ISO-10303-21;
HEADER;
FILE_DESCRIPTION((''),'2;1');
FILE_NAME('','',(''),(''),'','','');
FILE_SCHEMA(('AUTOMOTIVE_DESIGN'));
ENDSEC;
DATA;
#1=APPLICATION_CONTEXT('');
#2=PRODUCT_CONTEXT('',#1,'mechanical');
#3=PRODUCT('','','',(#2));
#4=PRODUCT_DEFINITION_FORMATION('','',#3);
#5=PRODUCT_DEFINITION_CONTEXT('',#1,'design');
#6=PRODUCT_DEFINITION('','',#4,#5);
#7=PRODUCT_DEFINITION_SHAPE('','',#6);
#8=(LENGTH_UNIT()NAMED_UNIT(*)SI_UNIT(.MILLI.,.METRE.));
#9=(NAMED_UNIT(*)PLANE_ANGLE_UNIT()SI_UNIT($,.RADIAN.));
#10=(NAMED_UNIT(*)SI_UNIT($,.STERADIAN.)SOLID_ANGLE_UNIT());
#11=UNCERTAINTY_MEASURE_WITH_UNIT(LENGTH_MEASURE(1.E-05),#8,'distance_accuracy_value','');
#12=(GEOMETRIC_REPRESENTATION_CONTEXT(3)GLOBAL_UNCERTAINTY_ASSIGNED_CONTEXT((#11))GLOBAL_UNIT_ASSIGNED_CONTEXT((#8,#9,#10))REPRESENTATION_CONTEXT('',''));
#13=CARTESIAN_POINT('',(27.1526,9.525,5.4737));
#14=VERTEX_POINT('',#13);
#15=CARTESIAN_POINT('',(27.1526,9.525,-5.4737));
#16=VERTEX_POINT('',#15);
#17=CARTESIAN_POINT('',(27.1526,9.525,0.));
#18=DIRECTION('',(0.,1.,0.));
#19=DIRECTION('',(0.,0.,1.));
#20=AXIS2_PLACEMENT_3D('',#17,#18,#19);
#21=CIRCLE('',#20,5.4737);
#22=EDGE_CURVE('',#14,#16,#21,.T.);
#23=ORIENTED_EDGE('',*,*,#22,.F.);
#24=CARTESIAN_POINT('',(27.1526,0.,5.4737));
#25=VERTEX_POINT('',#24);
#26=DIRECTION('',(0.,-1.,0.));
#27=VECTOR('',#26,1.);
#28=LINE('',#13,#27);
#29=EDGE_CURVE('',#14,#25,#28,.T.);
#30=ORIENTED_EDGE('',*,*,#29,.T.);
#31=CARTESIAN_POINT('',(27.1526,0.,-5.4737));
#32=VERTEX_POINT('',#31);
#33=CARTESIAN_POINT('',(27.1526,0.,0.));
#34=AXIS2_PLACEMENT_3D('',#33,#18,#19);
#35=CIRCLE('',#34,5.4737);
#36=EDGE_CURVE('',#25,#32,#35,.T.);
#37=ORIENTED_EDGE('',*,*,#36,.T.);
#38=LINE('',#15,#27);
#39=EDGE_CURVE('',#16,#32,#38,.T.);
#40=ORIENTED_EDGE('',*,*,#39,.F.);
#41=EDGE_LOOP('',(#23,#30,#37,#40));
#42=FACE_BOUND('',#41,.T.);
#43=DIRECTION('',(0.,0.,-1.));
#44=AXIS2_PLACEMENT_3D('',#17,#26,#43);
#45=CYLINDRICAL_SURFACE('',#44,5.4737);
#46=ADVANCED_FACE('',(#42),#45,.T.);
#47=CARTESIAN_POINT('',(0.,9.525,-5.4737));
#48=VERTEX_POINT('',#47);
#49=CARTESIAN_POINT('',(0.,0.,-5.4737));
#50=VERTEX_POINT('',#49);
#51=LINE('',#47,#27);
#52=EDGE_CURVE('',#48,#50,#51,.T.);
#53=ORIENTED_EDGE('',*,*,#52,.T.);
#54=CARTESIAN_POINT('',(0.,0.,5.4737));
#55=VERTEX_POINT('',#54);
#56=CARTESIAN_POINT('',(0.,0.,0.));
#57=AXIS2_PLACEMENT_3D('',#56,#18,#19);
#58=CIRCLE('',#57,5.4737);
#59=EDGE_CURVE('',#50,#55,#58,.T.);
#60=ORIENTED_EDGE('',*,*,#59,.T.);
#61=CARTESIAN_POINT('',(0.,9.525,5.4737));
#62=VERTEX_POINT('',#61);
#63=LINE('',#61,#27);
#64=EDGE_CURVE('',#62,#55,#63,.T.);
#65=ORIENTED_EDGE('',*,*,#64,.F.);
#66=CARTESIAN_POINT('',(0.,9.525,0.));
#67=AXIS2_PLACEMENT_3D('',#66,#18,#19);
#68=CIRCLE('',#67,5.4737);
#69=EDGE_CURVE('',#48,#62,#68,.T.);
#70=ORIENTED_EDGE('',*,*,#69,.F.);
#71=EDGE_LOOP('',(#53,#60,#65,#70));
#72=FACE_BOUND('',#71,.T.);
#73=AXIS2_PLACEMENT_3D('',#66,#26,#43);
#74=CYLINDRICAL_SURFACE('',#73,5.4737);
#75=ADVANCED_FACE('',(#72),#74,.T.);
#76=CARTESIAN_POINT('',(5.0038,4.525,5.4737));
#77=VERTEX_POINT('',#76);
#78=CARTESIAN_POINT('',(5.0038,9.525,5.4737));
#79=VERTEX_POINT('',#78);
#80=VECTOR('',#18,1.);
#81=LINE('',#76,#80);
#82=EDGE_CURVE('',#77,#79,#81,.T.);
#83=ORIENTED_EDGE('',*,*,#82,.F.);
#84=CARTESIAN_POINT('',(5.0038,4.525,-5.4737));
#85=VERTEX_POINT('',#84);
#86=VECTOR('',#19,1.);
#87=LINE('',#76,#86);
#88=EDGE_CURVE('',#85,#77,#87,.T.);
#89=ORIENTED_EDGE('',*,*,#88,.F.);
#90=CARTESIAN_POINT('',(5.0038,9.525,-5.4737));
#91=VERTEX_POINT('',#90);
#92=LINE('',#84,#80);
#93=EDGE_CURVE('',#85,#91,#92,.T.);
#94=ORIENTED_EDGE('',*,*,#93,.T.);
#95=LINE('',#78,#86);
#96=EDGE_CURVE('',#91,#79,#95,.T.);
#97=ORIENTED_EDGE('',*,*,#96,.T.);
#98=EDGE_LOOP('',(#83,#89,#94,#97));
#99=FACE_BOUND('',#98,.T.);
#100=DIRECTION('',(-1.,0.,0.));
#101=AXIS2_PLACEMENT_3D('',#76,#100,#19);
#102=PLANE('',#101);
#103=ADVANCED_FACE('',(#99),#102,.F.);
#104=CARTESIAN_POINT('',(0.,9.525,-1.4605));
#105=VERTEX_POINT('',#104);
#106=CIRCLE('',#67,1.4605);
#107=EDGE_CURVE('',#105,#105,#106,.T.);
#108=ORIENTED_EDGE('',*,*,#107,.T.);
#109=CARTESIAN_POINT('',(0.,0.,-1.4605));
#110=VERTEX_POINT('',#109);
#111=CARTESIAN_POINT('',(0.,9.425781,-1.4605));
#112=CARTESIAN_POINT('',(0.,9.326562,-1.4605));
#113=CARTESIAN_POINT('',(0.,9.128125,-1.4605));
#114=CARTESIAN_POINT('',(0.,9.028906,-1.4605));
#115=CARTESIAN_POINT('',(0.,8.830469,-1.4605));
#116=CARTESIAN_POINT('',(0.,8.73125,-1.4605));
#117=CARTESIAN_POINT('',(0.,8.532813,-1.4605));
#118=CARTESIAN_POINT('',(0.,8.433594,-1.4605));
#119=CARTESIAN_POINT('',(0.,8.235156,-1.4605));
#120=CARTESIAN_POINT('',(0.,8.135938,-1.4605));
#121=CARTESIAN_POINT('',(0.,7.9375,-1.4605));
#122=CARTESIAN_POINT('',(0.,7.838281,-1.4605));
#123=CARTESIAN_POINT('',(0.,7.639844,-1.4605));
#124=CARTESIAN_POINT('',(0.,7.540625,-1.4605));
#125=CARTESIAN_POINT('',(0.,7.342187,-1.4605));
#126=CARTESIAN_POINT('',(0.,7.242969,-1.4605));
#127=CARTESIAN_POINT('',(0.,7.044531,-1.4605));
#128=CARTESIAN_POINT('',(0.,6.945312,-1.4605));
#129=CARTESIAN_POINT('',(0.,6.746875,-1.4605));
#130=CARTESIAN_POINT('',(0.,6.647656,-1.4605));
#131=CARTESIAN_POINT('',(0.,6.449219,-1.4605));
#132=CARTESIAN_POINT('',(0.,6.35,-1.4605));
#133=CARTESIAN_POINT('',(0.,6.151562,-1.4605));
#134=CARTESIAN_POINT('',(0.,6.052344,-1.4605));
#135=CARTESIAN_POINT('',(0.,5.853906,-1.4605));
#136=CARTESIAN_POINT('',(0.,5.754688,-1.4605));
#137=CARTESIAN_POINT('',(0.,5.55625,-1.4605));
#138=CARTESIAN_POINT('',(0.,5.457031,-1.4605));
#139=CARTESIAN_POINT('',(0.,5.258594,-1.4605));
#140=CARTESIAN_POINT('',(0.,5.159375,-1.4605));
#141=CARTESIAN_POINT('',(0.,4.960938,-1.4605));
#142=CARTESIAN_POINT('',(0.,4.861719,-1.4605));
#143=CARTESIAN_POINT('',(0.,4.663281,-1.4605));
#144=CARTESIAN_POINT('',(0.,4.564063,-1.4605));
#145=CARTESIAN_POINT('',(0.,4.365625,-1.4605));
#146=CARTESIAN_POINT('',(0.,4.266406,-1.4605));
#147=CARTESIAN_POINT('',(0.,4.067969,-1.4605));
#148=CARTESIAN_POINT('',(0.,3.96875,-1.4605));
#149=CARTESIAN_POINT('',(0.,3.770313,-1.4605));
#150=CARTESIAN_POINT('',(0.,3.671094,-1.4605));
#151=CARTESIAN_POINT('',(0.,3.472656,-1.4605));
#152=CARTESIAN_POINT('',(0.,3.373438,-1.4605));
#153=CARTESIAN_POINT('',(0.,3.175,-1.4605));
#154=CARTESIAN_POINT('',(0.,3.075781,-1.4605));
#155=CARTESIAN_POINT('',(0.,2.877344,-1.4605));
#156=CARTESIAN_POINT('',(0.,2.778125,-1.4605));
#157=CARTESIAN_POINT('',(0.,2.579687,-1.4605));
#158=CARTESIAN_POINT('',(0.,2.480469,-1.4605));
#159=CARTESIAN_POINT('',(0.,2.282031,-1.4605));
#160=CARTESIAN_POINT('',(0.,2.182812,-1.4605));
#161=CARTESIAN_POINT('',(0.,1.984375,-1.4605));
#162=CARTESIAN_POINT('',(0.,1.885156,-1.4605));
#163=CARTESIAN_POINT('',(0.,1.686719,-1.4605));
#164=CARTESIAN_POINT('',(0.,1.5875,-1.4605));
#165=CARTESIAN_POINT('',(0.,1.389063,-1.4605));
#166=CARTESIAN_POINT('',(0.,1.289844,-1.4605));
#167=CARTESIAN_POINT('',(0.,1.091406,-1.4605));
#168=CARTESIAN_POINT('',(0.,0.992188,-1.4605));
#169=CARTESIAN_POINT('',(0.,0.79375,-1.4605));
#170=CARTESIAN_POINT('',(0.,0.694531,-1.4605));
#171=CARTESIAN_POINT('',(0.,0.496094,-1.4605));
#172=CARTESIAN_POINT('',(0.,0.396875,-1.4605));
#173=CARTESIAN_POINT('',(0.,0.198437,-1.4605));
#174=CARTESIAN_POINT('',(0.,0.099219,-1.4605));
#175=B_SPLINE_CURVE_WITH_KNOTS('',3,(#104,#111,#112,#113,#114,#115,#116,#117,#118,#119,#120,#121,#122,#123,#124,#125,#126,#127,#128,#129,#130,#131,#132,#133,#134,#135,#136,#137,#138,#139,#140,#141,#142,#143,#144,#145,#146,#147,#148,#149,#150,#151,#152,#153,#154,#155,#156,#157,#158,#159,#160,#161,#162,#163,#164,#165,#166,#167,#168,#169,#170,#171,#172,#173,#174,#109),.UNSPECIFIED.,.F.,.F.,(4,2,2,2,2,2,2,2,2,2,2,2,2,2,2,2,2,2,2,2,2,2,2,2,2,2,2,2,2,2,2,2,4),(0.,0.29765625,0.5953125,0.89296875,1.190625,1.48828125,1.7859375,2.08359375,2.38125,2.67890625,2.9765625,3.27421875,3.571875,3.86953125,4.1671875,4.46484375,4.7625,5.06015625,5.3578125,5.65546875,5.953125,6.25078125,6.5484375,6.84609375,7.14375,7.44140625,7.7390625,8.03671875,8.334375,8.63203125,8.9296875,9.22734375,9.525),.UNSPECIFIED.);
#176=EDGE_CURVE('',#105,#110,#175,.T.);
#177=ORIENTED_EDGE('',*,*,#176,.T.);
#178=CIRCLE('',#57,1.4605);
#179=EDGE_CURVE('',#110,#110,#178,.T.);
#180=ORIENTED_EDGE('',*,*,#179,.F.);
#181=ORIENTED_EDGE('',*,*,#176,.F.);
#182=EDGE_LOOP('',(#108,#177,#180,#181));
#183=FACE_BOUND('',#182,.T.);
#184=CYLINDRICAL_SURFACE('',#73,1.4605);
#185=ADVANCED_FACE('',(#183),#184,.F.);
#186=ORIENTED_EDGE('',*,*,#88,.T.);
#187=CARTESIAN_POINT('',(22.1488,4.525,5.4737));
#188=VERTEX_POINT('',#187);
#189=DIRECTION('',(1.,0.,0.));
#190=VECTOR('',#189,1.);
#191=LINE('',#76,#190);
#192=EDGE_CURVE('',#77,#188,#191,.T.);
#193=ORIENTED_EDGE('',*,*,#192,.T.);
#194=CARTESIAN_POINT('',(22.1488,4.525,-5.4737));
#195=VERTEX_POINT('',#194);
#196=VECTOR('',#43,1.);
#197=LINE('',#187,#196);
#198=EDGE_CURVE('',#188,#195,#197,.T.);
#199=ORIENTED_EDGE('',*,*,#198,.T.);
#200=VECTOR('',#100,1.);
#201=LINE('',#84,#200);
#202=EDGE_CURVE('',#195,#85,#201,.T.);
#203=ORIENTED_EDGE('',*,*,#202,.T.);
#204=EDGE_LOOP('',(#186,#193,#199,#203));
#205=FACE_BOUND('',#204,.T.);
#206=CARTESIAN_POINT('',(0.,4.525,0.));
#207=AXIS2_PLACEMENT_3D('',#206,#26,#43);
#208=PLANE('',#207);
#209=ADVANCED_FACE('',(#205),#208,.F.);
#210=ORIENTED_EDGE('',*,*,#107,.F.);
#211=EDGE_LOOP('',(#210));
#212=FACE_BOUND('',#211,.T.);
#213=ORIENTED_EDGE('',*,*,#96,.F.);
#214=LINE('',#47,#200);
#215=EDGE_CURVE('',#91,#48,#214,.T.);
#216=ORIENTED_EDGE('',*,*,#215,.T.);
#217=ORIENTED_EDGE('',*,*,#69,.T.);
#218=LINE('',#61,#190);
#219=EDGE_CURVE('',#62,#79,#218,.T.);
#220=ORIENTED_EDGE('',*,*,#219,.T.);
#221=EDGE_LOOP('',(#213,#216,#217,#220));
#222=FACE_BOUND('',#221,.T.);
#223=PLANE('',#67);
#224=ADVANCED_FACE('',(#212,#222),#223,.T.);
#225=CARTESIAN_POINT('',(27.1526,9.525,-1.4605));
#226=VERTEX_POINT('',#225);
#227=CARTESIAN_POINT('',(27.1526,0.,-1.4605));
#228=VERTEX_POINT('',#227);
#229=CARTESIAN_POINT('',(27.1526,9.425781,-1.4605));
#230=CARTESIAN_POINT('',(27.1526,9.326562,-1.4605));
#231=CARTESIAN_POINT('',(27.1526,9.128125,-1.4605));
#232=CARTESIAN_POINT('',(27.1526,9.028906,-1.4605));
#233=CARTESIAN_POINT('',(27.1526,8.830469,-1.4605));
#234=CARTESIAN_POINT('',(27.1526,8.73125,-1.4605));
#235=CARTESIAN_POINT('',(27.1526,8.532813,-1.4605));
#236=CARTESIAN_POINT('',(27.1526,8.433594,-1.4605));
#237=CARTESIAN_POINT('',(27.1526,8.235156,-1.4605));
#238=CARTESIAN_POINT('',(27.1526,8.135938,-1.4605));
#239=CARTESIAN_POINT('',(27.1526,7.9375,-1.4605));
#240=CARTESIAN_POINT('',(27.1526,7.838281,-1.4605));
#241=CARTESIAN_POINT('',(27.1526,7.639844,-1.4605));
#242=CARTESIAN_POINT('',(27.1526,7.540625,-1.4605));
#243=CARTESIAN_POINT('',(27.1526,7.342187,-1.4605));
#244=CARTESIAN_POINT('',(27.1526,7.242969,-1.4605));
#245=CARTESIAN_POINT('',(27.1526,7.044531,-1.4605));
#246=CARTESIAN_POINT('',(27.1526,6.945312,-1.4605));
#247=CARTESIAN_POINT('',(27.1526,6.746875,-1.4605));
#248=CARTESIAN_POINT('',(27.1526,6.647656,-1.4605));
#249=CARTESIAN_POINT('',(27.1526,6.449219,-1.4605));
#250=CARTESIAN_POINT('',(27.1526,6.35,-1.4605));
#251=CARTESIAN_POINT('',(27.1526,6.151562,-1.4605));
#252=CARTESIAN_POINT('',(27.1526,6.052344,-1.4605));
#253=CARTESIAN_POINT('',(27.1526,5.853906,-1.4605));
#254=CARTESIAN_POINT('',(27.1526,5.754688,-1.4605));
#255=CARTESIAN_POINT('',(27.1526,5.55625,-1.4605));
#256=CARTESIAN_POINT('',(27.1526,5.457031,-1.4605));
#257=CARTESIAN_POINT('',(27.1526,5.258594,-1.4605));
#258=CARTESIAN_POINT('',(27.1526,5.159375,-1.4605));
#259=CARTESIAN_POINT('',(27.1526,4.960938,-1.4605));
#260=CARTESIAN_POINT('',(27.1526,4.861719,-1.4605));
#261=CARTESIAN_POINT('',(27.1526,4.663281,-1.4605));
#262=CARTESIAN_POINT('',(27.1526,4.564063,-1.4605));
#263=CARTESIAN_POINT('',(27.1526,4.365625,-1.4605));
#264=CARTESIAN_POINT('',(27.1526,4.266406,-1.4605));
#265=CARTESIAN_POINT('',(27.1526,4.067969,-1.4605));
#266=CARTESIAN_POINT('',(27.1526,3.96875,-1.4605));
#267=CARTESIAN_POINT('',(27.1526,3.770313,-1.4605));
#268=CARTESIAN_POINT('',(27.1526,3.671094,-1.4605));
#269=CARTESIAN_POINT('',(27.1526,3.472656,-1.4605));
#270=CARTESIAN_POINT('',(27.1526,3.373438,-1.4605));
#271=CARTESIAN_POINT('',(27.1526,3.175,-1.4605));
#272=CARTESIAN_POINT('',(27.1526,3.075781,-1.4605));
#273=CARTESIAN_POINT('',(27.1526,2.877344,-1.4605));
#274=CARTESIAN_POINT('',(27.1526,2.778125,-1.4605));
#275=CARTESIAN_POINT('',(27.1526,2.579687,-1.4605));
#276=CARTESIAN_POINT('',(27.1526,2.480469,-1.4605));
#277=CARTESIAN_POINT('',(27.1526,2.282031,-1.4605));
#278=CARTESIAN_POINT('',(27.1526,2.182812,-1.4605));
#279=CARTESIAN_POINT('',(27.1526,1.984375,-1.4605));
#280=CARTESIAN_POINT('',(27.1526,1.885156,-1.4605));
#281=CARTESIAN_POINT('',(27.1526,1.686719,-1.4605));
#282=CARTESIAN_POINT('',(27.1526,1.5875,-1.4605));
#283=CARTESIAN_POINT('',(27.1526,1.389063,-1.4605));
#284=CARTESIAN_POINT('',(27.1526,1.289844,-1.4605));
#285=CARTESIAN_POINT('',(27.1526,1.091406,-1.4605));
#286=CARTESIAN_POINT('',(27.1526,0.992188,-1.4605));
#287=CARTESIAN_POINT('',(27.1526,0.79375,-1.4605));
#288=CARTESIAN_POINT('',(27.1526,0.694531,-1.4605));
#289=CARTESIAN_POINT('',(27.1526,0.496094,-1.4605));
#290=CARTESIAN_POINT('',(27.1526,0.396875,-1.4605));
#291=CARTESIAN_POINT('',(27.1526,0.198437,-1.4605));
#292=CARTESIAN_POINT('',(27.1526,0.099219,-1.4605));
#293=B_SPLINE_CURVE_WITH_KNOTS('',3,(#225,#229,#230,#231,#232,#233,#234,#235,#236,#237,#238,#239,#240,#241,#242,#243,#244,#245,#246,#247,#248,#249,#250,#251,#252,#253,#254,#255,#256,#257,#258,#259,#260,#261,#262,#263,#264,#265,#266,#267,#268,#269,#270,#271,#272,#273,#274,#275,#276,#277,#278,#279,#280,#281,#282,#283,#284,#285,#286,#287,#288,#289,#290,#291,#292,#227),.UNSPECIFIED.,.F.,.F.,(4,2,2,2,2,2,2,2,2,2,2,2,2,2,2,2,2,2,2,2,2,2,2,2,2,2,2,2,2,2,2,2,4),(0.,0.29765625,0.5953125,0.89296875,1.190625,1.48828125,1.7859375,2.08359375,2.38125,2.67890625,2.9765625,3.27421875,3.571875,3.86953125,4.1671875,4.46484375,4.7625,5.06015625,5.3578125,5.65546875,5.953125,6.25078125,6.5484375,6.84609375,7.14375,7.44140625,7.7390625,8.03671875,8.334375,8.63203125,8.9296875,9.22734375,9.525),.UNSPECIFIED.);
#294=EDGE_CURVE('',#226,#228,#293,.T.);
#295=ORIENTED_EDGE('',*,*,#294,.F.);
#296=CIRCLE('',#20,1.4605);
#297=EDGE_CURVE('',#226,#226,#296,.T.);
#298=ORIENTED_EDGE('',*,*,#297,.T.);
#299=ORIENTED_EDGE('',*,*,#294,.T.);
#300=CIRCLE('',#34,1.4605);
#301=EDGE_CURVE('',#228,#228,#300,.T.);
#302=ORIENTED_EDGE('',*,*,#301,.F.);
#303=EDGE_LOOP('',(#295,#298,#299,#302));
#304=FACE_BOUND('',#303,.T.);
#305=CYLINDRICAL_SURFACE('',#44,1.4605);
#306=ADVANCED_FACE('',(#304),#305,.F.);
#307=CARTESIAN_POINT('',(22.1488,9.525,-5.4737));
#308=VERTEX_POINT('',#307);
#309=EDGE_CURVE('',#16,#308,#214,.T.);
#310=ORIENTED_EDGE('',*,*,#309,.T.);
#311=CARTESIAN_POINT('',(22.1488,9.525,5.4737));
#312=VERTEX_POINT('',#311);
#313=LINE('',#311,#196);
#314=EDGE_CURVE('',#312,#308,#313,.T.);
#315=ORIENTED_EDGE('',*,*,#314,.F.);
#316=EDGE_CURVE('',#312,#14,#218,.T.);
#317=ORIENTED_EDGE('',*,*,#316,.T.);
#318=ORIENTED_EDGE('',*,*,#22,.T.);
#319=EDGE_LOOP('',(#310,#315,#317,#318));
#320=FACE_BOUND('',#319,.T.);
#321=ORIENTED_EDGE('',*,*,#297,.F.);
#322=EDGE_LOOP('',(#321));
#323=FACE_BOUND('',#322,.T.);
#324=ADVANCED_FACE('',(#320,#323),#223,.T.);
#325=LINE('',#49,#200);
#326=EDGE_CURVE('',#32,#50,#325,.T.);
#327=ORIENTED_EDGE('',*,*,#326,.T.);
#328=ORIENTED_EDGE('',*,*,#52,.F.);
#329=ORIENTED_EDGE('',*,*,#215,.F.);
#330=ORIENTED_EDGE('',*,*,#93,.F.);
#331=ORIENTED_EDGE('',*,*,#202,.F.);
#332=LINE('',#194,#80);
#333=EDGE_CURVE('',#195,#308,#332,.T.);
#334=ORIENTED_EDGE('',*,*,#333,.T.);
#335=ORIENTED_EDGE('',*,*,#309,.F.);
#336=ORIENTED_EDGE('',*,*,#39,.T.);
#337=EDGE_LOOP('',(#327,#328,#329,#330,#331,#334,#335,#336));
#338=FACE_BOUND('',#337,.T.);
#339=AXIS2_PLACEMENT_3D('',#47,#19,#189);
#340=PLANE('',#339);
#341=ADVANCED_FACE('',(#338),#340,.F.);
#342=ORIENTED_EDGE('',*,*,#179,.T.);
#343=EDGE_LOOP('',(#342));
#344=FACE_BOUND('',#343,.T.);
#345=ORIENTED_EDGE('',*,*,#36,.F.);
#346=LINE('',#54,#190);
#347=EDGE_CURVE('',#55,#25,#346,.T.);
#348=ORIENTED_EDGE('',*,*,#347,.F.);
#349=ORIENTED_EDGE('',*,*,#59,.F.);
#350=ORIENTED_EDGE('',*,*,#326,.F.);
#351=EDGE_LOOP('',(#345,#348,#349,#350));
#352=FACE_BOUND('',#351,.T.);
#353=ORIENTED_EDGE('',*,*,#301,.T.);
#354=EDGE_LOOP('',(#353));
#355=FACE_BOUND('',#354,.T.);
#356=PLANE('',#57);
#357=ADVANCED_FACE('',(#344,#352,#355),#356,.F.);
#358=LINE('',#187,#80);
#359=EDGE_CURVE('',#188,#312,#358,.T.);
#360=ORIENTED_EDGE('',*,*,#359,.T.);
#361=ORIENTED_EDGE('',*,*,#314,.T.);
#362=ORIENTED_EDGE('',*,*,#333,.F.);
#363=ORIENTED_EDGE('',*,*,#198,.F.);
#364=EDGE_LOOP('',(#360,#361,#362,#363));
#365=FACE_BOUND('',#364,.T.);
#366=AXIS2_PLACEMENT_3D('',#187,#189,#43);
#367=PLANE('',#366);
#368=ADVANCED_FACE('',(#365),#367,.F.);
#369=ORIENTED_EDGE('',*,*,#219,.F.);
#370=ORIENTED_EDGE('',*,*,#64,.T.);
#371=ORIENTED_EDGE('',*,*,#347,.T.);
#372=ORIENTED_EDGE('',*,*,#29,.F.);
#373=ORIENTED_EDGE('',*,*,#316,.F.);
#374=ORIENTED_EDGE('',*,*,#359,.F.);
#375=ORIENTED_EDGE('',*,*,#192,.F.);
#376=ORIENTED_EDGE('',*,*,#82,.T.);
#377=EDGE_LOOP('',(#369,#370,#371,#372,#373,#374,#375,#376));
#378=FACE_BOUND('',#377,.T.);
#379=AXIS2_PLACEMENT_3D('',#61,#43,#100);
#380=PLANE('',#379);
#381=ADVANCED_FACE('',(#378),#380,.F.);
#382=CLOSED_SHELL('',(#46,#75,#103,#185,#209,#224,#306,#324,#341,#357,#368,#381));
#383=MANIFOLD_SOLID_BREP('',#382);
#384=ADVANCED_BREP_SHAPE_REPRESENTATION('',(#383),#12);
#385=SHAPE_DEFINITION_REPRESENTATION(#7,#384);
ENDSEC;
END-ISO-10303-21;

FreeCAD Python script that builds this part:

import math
import FreeCAD as App
import Part
import Sketcher

V = App.Vector
Q = App.Units.Quantity

doc = App.newDocument("Part")
body = doc.addObject("PartDesign::Body", "Body")

sketch1 = doc.addObject("Sketcher::SketchObject", "Sketch")
body.addObject(sketch1)
sketch1.AttachmentSupport = (doc.XZ_Plane, [""])
sketch1.MapMode = "FlatFace"
sketch1.addGeometry([
    Part.LineSegment(V(27.2, -5.5, 0), V(0, -5.5, 0)),
    Part.ArcOfCircle(Part.Circle(V(0, 0, 0), V(0, 0, 1), 5.5), math.radians(90), math.radians(270)),
    Part.LineSegment(V(0, 5.5, 0), V(27.2, 5.5, 0)),
    Part.ArcOfCircle(Part.Circle(V(27.2, 0, 0), V(0, 0, 1), 5.5), math.radians(-90), math.radians(90)),
    Part.Circle(V(27.2, 0, 0), V(0, 0, 1), 1.5),
    Part.Circle(V(0, 0, 0), V(0, 0, 1), 1.5),
], False)
sketch1.addConstraint([
    Sketcher.Constraint("Tangent", 0, 2, 1, 2),
    Sketcher.Constraint("Tangent", 1, 1, 2, 1),
    Sketcher.Constraint("Tangent", 2, 2, 3, 2),
    Sketcher.Constraint("Tangent", 3, 1, 0, 1),
    Sketcher.Constraint("Horizontal", 0),
    Sketcher.Constraint("Horizontal", 2),
    Sketcher.Constraint("Coincident", 1, 3, -1, 1),
    Sketcher.Constraint("Coincident", 5, 3, -1, 1),
    Sketcher.Constraint("Coincident", 4, 3, 3, 3),
    Sketcher.Constraint("Equal", 4, 5),
    Sketcher.Constraint("Diameter", 4, Q("0.115 in")),
    Sketcher.Constraint("Radius", 1, Q("0.2155 in")),
    Sketcher.Constraint("DistanceX", 0, 2, 0, 1, Q("1.069 in")),
])
pad1 = doc.addObject("PartDesign::Pad", "Pad")
body.addObject(pad1)
pad1.Profile = sketch1
pad1.Length = Q("0.375 in")
pad1.Reversed = True

sketch2 = doc.addObject("Sketcher::SketchObject", "Sketch001")
body.addObject(sketch2)
sketch2.AttachmentSupport = (doc.XZ_Plane, [""])
sketch2.MapMode = "FlatFace"
sketch2.AttachmentOffset = App.Placement(V(0, 0, -0.375 * 25.4), App.Rotation())
sketch2.addGeometry([
    Part.LineSegment(V(5, -5, 0), V(5, 5, 0)),
    Part.LineSegment(V(5, 5, 0), V(22, 5, 0)),
    Part.LineSegment(V(22, 5, 0), V(22, -5, 0)),
    Part.LineSegment(V(22, -5, 0), V(5, -5, 0)),
], False)
sketch2.addConstraint([
    Sketcher.Constraint("Coincident", 0, 2, 1, 1),
    Sketcher.Constraint("Coincident", 1, 2, 2, 1),
    Sketcher.Constraint("Coincident", 2, 2, 3, 1),
    Sketcher.Constraint("Coincident", 3, 2, 0, 1),
    Sketcher.Constraint("Vertical", 0),
    Sketcher.Constraint("Horizontal", 1),
    Sketcher.Constraint("Vertical", 2),
    Sketcher.Constraint("Horizontal", 3),
    Sketcher.Constraint("DistanceX", 1, 1, 1, 2, Q("0.675 in")),
    Sketcher.Constraint("DistanceY", 0, 1, 0, 2, Q("0.431 in")),
    Sketcher.Constraint("DistanceX", -1, 1, 0, 2, Q("0.197 in")),
    Sketcher.Constraint("DistanceY", -1, 1, 0, 2, Q("0.2155 in")),
])
pocket1 = doc.addObject("PartDesign::Pocket", "Pocket")
body.addObject(pocket1)
pocket1.Profile = sketch2
pocket1.Length = 5
pocket1.Reversed = True

doc.recompute()
